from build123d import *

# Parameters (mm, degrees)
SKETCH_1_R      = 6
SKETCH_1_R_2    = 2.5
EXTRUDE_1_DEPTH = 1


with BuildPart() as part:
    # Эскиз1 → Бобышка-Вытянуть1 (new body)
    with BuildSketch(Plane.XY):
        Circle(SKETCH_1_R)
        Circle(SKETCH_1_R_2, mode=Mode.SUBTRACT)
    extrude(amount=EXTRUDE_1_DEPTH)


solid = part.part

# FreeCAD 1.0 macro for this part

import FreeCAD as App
import Part
import Sketcher
from FreeCAD import Vector
Q = App.Units.Quantity

doc = App.newDocument("Part")
body = doc.addObject("PartDesign::Body", "Body")

sketch1 = doc.addObject("Sketcher::SketchObject", "Sketch")
body.addObject(sketch1)
sketch1.AttachmentSupport = (doc.XY_Plane, [""])
sketch1.MapMode = "FlatFace"
sketch1.addGeometry(Part.Circle(Vector(0, 0, 0), Vector(0, 0, 1), 6), False)
sketch1.addGeometry(Part.Circle(Vector(0, 0, 0), Vector(0, 0, 1), 2.5), False)
sketch1.addConstraint(Sketcher.Constraint("Coincident", 0, 3, -1, 1))
sketch1.addConstraint(Sketcher.Constraint("Coincident", 1, 3, -1, 1))
sketch1.addConstraint(Sketcher.Constraint("Diameter", 0, Q("12 mm")))
sketch1.addConstraint(Sketcher.Constraint("Diameter", 1, Q("5 mm")))
pad1 = doc.addObject("PartDesign::Pad", "Pad")
body.addObject(pad1)
pad1.Profile = sketch1
pad1.Length = 1

doc.recompute()
